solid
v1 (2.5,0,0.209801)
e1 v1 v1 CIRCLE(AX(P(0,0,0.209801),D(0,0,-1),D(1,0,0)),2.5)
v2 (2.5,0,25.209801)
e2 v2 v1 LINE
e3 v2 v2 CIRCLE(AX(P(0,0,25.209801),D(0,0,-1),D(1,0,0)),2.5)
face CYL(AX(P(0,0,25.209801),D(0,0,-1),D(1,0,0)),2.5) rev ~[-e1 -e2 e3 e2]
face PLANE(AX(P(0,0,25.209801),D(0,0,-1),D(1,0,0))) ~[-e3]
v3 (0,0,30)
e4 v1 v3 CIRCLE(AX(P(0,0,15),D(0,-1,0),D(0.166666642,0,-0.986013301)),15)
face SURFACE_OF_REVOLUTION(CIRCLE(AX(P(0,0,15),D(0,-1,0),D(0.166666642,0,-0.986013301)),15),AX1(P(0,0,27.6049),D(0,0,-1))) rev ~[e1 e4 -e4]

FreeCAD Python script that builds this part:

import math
import FreeCAD as App
import Part
import Sketcher

V = App.Vector
Q = App.Units.Quantity

doc = App.newDocument("Part")
params = doc.addObject("Spreadsheet::Sheet", "Params")
for row, (alias, value) in enumerate([
    ("sketch1_radius", "15 mm"),
    ("sketch1_height", "25 mm"),
    ("sketch1_width", "2.5 mm"),
    ("revolution_angle", "360 deg"),
], start=1):
    params.set(f"A{row}", alias)
    params.set(f"B{row}", "=" + value)
    params.setAlias(f"B{row}", alias)

body = doc.addObject("PartDesign::Body", "Body")

# Sketch on XZ plane
sketch1 = body.newObject("Sketcher::SketchObject", "Sketch")
sketch1.AttachmentSupport = (doc.getObject("XZ_Plane"), [""])
sketch1.MapMode = "FlatFace"
sketch1.addGeometry([
    Part.LineSegment(V(2.5, 25.209801, 0), V(2.5, 0.209801, 0)),
    Part.ArcOfCircle(Part.Circle(V(0, 15, 0), V(0, 0, 1), 15), math.radians(-80.405933), math.radians(90.000002)),
    Part.LineSegment(V(0, 30, 0), V(0, 25.209801, 0)),
    Part.LineSegment(V(0, 25.209801, 0), V(2.5, 25.209801, 0)),
], False)
sketch1.addConstraint([
    Sketcher.Constraint("Coincident", 0, 2, 1, 1),
    Sketcher.Constraint("Coincident", 1, 2, 2, 1),
    Sketcher.Constraint("Coincident", 2, 2, 3, 1),
    Sketcher.Constraint("Coincident", 3, 2, 0, 1),
    Sketcher.Constraint("Vertical", 0),
    Sketcher.Constraint("Vertical", 2),
    Sketcher.Constraint("Horizontal", 3),
    Sketcher.Constraint("PointOnObject", 1, 3, -2),
    Sketcher.Constraint("PointOnObject", 1, 2, -2),
    Sketcher.Constraint("Radius", 1, Q("15 mm")),
    Sketcher.Constraint("DistanceY", 0, 2, 0, 1, Q("25 mm")),
    Sketcher.Constraint("DistanceX", 3, 1, 3, 2, Q("2.5 mm")),
    Sketcher.Constraint("DistanceY", -1, 1, 1, 3, Q("15 mm")),
])
sketch1.setExpression("Constraints[9]", "Params.sketch1_radius")
sketch1.setExpression("Constraints[10]", "Params.sketch1_height")
sketch1.setExpression("Constraints[11]", "Params.sketch1_width")
revolution = body.newObject("PartDesign::Revolution", "Revolution")
revolution.Profile = sketch1
revolution.ReferenceAxis = (sketch1, ["V_Axis"])
revolution.setExpression("Angle", "Params.revolution_angle")

doc.recompute()
